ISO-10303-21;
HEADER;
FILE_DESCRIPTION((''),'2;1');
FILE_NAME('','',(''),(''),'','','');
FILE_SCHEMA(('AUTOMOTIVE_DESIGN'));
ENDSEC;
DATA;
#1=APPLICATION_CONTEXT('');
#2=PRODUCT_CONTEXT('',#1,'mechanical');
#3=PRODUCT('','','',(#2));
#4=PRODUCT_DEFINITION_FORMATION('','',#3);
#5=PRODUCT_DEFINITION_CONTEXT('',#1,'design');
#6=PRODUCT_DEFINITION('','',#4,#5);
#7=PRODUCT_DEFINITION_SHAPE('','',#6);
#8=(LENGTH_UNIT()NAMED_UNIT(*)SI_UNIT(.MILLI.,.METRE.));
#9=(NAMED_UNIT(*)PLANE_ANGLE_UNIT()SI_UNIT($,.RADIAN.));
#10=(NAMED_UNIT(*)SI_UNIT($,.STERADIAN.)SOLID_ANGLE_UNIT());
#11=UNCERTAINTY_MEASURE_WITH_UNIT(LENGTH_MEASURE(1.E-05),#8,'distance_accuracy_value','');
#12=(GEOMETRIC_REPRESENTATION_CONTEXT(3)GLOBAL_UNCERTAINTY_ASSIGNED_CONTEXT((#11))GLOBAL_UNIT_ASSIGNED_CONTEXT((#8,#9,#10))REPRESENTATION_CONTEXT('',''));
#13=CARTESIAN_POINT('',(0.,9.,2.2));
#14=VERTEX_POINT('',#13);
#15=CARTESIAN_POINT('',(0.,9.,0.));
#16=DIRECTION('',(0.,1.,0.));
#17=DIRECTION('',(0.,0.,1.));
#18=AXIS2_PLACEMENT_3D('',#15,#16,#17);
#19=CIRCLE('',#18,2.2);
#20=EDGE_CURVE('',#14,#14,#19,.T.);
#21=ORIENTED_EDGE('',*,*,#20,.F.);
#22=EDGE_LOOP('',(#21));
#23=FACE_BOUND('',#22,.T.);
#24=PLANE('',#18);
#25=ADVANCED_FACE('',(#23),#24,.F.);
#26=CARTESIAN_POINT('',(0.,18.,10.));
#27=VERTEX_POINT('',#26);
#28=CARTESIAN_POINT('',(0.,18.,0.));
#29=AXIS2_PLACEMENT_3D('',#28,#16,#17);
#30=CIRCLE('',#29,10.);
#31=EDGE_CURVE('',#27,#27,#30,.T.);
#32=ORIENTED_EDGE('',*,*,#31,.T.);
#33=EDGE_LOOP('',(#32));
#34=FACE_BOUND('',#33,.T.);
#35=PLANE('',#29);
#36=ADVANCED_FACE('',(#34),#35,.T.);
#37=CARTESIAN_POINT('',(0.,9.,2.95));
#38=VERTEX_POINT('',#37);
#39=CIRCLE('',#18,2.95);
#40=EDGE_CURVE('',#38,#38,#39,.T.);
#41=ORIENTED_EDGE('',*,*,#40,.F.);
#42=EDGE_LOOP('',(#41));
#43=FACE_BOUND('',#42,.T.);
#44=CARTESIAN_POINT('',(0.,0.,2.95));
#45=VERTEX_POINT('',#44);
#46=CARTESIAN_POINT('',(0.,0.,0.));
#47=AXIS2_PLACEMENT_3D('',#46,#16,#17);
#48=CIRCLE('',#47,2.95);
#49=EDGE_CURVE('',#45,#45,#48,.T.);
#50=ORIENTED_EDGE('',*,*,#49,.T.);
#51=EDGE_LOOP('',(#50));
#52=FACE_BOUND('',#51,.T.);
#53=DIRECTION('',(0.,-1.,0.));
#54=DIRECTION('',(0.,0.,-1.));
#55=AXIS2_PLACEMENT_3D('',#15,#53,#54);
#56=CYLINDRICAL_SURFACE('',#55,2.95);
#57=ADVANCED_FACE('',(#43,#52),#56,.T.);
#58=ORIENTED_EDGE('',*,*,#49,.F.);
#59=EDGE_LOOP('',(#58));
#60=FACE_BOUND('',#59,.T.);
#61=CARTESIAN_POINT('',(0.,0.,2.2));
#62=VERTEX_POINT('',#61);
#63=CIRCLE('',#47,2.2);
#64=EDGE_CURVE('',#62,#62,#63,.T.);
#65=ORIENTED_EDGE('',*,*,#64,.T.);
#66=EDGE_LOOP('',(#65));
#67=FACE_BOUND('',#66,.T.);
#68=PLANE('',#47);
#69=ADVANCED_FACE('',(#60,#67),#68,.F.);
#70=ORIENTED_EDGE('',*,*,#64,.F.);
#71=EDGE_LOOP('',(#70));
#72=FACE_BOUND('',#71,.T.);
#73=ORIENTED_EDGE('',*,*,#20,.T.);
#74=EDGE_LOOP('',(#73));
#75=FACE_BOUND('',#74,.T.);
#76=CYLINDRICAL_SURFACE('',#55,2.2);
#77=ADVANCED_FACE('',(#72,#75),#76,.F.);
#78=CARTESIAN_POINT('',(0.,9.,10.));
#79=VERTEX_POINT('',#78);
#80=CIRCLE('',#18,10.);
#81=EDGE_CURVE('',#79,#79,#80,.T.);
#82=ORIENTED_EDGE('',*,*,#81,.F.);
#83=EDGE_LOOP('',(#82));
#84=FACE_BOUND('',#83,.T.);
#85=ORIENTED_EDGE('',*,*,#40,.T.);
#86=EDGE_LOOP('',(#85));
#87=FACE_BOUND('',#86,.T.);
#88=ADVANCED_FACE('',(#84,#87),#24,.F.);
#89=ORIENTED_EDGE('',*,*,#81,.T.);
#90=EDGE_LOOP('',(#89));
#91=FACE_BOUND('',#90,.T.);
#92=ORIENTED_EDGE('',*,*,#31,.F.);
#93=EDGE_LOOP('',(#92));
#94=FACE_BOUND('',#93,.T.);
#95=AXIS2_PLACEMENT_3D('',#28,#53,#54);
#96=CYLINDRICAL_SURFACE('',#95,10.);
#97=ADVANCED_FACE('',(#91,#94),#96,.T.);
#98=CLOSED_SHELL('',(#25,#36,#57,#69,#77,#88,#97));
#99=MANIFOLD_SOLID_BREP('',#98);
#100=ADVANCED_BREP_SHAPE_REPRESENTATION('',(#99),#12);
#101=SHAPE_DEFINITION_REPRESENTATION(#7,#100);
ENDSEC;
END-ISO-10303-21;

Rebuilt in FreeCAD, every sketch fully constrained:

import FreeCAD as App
import Part
import Sketcher
from FreeCAD import Vector
Q = App.Units.Quantity

doc = App.newDocument("Part")
body = doc.addObject("PartDesign::Body", "Body")

# Sketch on XZ plane
sketch1 = doc.addObject("Sketcher::SketchObject", "Sketch")
body.addObject(sketch1)
sketch1.AttachmentSupport = (doc.XZ_Plane, [""])
sketch1.MapMode = "FlatFace"
sketch1.addGeometry(Part.Circle(Vector(0, 0, 0), Vector(0, 0, 1), 3), False)
sketch1.addGeometry(Part.Circle(Vector(0, 0, 0), Vector(0, 0, 1), 2.2), False)
sketch1.addConstraint(Sketcher.Constraint("Coincident", 0, 3, -1, 1))
sketch1.addConstraint(Sketcher.Constraint("Coincident", 1, 3, -1, 1))
sketch1.addConstraint(Sketcher.Constraint("Diameter", 0, Q("5.9 mm")))
sketch1.addConstraint(Sketcher.Constraint("Diameter", 1, Q("4.4 mm")))
pad1 = doc.addObject("PartDesign::Pad", "Pad")
body.addObject(pad1)
pad1.Profile = sketch1
pad1.Length = 9
pad1.Reversed = True

# Sketch on XZ plane
sketch2 = doc.addObject("Sketcher::SketchObject", "Sketch001")
body.addObject(sketch2)
sketch2.AttachmentSupport = (doc.XZ_Plane, [""])
sketch2.MapMode = "FlatFace"
sketch2.AttachmentOffset = App.Placement(Vector(0, 0, -9), App.Rotation())
sketch2.addGeometry(Part.Circle(Vector(0, 0, 0), Vector(0, 0, 1), 10), False)
sketch2.addConstraint(Sketcher.Constraint("Coincident", 0, 3, -1, 1))
sketch2.addConstraint(Sketcher.Constraint("Diameter", 0, Q("20 mm")))
pad2 = doc.addObject("PartDesign::Pad", "Pad001")
body.addObject(pad2)
pad2.Profile = sketch2
pad2.Length = 9
pad2.Reversed = True

doc.recompute()
